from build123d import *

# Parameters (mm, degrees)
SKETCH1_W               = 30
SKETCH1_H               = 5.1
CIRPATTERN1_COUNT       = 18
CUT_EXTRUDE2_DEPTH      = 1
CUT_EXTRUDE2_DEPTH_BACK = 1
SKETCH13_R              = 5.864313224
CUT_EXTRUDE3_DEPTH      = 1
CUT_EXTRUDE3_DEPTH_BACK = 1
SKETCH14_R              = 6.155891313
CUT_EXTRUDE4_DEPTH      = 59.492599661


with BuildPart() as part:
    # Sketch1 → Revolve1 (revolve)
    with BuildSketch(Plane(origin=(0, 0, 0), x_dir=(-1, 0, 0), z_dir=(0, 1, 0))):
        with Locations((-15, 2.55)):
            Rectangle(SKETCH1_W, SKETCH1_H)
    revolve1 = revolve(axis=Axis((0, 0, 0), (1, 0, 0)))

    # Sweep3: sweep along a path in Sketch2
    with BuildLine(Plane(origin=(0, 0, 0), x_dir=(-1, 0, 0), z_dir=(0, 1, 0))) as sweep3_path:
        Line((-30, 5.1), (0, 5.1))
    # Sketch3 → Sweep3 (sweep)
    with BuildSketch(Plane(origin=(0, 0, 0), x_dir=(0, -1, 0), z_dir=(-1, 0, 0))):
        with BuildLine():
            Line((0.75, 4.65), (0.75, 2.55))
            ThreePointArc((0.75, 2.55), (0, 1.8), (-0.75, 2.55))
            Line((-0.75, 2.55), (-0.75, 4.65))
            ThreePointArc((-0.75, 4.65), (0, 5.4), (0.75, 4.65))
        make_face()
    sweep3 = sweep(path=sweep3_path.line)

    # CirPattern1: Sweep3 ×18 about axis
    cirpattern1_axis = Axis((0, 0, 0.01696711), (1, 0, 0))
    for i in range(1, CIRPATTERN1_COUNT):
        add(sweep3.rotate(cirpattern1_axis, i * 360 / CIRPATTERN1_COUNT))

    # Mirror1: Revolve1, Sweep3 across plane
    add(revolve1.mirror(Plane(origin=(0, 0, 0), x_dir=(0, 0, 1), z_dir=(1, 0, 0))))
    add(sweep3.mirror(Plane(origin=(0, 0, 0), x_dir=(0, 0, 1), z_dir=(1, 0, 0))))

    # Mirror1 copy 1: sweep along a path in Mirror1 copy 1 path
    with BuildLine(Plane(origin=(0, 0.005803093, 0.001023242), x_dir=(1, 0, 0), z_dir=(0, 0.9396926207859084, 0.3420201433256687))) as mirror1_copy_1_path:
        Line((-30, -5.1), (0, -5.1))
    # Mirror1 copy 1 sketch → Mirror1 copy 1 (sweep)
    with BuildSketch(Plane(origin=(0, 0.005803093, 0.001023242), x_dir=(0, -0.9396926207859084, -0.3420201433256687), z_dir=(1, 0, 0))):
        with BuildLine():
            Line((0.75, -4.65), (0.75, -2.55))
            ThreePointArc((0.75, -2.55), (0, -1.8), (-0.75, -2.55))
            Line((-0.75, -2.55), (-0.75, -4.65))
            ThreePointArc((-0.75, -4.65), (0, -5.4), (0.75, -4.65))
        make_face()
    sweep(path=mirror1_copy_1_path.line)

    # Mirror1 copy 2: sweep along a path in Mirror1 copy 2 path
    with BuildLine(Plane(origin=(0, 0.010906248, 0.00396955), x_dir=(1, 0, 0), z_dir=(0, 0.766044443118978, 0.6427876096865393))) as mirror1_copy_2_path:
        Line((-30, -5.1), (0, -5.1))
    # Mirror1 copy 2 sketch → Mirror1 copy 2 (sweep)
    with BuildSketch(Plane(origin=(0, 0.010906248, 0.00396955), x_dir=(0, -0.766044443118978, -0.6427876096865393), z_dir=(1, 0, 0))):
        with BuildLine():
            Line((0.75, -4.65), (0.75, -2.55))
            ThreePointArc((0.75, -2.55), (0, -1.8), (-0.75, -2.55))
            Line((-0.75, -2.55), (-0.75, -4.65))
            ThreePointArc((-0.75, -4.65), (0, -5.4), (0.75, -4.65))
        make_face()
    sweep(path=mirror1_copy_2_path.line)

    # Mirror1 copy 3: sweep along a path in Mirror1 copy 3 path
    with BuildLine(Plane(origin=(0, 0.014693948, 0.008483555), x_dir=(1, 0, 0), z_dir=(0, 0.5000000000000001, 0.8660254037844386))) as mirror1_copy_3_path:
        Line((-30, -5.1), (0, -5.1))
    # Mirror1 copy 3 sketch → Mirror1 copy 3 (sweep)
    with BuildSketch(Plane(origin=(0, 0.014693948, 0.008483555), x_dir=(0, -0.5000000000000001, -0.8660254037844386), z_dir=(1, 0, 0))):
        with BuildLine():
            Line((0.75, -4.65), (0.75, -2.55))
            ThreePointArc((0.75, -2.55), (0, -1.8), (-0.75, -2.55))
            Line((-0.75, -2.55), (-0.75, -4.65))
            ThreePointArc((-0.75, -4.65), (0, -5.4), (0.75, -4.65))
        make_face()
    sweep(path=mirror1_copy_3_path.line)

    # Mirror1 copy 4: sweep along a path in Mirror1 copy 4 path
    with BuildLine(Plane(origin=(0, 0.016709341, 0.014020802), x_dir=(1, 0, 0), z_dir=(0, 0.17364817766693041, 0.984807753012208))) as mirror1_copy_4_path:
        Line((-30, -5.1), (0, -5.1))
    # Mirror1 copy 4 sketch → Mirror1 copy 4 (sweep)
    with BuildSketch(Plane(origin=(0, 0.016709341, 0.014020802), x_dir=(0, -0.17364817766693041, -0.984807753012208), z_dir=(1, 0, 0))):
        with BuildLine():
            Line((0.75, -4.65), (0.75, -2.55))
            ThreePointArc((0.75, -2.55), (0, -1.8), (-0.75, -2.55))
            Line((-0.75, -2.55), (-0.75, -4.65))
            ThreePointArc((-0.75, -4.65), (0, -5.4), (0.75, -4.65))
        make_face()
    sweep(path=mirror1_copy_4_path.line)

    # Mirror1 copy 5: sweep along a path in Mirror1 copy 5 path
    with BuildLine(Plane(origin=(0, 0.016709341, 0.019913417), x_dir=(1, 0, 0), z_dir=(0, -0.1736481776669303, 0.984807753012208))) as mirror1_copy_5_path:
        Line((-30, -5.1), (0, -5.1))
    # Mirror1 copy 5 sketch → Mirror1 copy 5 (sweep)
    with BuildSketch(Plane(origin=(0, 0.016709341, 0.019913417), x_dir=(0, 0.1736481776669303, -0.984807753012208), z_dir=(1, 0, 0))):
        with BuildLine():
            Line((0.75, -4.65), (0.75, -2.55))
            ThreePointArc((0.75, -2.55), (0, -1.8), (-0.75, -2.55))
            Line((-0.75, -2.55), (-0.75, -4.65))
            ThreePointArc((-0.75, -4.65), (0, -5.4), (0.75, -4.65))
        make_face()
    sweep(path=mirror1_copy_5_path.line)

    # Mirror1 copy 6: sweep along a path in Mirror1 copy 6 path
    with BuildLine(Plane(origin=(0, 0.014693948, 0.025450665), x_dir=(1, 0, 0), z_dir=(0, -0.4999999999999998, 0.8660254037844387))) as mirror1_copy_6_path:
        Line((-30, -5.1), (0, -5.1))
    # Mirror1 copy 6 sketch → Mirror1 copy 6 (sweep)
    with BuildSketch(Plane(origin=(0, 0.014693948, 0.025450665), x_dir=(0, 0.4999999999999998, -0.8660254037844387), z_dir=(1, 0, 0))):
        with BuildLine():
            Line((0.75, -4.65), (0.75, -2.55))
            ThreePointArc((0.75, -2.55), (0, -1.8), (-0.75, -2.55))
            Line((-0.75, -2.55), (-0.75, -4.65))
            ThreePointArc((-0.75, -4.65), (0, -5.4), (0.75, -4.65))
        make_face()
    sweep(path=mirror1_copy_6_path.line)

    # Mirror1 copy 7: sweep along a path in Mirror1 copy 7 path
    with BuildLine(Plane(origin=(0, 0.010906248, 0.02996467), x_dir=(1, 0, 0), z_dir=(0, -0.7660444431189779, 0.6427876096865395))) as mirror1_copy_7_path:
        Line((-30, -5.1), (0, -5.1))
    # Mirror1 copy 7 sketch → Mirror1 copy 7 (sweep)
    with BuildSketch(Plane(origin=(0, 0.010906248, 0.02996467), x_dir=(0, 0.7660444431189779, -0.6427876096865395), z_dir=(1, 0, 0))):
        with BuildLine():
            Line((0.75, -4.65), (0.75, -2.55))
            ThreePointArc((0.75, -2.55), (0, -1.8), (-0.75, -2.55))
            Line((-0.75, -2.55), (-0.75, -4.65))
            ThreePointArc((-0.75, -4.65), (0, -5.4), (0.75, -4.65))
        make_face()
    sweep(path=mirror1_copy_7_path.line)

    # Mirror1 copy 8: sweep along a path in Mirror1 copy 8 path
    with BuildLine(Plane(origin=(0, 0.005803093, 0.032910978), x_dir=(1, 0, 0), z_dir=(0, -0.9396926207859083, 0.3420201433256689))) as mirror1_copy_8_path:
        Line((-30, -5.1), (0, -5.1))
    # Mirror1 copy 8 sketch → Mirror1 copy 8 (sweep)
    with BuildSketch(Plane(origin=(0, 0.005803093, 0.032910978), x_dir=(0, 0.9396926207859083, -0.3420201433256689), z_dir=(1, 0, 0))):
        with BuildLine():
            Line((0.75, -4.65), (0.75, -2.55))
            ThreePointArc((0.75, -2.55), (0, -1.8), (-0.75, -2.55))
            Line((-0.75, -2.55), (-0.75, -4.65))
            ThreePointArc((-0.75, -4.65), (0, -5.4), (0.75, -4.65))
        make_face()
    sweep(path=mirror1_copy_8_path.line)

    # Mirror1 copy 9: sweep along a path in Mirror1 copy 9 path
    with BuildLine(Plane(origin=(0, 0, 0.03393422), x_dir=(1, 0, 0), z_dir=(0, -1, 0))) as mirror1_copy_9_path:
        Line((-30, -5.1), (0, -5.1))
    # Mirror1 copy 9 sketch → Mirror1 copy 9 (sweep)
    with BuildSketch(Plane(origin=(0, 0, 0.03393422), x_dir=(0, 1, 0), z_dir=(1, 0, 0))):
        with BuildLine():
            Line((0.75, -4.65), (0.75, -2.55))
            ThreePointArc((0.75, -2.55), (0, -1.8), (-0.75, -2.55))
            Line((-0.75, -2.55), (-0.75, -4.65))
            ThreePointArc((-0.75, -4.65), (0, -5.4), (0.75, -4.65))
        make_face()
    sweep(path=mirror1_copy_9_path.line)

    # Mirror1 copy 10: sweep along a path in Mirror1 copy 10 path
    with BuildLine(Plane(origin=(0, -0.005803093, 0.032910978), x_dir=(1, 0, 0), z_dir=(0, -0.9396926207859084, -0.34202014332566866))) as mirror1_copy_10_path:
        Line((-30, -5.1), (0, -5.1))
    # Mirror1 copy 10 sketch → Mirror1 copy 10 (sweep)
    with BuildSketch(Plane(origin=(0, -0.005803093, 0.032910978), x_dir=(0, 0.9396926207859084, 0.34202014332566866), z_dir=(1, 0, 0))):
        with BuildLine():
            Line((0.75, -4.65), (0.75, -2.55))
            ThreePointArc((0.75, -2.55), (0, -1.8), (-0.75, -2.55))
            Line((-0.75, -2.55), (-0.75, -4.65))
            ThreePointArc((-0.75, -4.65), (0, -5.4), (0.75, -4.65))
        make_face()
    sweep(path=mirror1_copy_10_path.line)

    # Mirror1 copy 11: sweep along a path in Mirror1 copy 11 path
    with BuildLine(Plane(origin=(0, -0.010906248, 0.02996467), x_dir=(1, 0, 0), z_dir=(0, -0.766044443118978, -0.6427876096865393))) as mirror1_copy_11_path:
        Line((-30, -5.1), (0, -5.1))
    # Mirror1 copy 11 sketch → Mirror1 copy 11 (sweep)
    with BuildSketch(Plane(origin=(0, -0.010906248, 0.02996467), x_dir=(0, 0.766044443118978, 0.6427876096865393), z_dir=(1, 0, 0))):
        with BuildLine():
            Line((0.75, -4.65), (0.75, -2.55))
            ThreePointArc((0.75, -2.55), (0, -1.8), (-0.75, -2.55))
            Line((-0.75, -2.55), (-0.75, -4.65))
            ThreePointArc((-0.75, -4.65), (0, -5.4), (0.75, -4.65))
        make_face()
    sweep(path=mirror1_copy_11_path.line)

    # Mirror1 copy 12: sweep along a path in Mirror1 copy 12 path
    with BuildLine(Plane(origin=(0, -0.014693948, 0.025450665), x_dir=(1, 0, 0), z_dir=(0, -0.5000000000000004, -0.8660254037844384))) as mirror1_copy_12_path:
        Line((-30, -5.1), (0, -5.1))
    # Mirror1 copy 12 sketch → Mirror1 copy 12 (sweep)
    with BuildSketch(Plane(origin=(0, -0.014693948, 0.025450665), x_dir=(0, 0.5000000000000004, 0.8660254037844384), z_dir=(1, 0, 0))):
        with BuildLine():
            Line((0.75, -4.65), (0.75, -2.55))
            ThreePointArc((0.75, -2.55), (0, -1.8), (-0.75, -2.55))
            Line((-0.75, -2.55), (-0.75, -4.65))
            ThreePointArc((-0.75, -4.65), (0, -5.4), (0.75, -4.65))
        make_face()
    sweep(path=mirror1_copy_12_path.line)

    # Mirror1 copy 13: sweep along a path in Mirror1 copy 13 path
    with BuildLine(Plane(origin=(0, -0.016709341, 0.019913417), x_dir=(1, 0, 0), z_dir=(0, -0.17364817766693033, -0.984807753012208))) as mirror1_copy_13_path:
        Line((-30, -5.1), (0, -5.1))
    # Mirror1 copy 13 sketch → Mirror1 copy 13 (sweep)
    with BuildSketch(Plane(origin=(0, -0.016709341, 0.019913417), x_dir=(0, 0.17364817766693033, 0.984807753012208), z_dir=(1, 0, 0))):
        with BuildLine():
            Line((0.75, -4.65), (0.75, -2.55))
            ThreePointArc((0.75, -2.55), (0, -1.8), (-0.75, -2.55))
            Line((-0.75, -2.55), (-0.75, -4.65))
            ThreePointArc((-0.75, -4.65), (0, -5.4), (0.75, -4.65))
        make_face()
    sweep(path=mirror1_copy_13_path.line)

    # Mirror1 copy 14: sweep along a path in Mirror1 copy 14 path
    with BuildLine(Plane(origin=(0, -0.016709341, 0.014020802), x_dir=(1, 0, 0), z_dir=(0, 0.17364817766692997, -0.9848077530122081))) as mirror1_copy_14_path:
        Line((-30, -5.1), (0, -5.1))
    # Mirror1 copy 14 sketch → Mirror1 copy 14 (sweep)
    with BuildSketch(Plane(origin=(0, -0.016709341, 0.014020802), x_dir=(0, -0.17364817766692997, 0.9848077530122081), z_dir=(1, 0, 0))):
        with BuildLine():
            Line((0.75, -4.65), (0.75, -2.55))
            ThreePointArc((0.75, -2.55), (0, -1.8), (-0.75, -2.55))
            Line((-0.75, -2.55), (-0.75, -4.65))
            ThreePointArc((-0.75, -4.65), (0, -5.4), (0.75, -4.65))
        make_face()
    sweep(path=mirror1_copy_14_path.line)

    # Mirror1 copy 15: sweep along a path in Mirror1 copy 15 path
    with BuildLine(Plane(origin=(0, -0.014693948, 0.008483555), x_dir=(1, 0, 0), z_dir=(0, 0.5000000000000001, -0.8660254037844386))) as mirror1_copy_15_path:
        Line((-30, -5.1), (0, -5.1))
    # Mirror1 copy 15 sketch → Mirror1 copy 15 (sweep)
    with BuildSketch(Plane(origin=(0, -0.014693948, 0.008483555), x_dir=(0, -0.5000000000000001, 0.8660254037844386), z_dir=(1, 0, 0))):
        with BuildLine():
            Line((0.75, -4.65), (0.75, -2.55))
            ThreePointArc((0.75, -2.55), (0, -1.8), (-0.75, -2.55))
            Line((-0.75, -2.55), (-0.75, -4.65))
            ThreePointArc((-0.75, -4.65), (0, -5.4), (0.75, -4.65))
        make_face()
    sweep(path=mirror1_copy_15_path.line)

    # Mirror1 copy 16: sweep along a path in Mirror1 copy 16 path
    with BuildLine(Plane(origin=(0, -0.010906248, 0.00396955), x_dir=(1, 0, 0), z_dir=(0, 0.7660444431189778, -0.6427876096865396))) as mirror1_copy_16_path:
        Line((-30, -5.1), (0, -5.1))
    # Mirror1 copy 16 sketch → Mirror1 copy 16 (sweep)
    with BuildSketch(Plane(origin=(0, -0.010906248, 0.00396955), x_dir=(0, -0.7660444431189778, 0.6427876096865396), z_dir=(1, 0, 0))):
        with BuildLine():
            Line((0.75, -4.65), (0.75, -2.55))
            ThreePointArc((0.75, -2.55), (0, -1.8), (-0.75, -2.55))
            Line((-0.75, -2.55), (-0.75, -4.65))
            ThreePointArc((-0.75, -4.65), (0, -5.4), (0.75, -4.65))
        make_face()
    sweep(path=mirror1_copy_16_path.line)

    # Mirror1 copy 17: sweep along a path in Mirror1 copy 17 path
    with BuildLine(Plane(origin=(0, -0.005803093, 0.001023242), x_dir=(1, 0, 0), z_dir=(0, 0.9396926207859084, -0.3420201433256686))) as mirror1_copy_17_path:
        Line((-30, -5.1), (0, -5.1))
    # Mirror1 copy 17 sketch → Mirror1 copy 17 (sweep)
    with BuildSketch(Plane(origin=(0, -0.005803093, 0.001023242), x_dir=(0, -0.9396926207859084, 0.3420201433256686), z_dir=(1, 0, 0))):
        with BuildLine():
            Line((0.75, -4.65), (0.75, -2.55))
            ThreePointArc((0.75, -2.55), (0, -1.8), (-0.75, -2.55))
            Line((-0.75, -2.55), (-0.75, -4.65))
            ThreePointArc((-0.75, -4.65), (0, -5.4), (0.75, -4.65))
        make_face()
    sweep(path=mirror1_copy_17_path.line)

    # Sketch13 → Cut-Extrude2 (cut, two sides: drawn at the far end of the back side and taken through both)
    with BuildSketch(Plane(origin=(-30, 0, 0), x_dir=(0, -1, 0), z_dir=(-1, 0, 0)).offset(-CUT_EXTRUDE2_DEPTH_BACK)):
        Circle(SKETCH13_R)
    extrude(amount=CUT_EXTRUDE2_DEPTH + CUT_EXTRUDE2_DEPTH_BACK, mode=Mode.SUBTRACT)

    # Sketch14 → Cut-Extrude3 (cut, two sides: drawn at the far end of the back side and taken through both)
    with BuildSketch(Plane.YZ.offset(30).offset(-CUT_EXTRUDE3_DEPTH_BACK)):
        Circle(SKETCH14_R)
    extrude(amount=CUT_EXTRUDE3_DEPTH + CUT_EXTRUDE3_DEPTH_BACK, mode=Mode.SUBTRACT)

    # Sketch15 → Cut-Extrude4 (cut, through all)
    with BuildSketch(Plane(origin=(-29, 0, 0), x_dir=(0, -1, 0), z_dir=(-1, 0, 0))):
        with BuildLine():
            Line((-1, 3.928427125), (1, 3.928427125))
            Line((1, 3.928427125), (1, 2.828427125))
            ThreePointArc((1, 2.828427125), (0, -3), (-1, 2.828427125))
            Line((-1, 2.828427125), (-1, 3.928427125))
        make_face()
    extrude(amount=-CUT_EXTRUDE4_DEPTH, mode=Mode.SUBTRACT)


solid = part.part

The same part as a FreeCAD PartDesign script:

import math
import FreeCAD as App
import Part
import Sketcher
Q = App.Units.Quantity


def add_polygon(sketch, points):
    """Adds a closed chain of lines whose ends are joined by coincident constraints."""
    first, n = sketch.GeometryCount, len(points)
    for a, b in zip(points, points[1:] + points[:1]):
        sketch.addGeometry(Part.LineSegment(App.Vector(*a, 0), App.Vector(*b, 0)), False)
    for i in range(n):
        sketch.addConstraint(Sketcher.Constraint("Coincident", first + i, 2, first + (i + 1) % n, 1))

doc = App.newDocument("Part")
body = doc.addObject("PartDesign::Body", "Body")

sketch1 = doc.addObject("Sketcher::SketchObject", "Sketch")
body.addObject(sketch1)
sketch1.AttachmentSupport = (doc.XZ_Plane, [""])
sketch1.MapMode = "FlatFace"
add_polygon(sketch1, [(30, 5), (30, 0), (0, 0), (0, 5)])
sketch1.addConstraint([
    Sketcher.Constraint("Vertical", 0),
    Sketcher.Constraint("Horizontal", 1),
    Sketcher.Constraint("Vertical", 2),
    Sketcher.Constraint("Horizontal", 3),
    Sketcher.Constraint("Coincident", 1, 2, -1, 1),
    Sketcher.Constraint("DistanceX", 1, 2, 1, 1, 30.0),
    Sketcher.Constraint("DistanceY", 0, 2, 0, 1, 5.1),
])
revolution = doc.addObject("PartDesign::Revolution", "Revolution")
body.addObject(revolution)
revolution.Profile = sketch1
revolution.ReferenceAxis = (sketch1, ["H_Axis"])
revolution.Angle = 360

sketch2 = doc.addObject("Sketcher::SketchObject", "Sketch001")
body.addObject(sketch2)
sketch2.AttachmentSupport = (doc.YZ_Plane, [""])
sketch2.MapMode = "FlatFace"
sketch2.addGeometry([
    Part.LineSegment(App.Vector(-0.8, 2.5, 0), App.Vector(-0.8, 4.7, 0)),
    Part.ArcOfCircle(Part.Circle(App.Vector(0, 4.7, 0), App.Vector(0, 0, 1), 0.8), math.radians(0), math.radians(180)),
    Part.LineSegment(App.Vector(0.8, 4.7, 0), App.Vector(0.8, 2.5, 0)),
    Part.ArcOfCircle(Part.Circle(App.Vector(0, 2.5, 0), App.Vector(0, 0, 1), 0.8), math.radians(180), math.radians(360)),
], False)
sketch2.addConstraint([
    Sketcher.Constraint("Tangent", 0, 2, 1, 2),
    Sketcher.Constraint("Tangent", 1, 1, 2, 1),
    Sketcher.Constraint("Tangent", 2, 2, 3, 2),
    Sketcher.Constraint("Tangent", 3, 1, 0, 1),
    Sketcher.Constraint("Vertical", 0),
    Sketcher.Constraint("Vertical", 2),
    Sketcher.Constraint("PointOnObject", 1, 3, -2),
    Sketcher.Constraint("Radius", 1, 0.75),
    Sketcher.Constraint("DistanceY", 0, 1, 0, 2, 2.1),
    Sketcher.Constraint("DistanceY", -1, 1, 1, 3, 4.65),
])

sketch3 = doc.addObject("Sketcher::SketchObject", "Sketch002")
body.addObject(sketch3)
sketch3.AttachmentSupport = (doc.XY_Plane, [""])
sketch3.MapMode = "FlatFace"
sketch3.AttachmentOffset = App.Placement(App.Vector(0, 0, 5.1), App.Rotation())
sketch3.addGeometry(Part.LineSegment(App.Vector(30, 0, 0), App.Vector(0, 0, 0)), False)
sketch3.addConstraint([
    Sketcher.Constraint("Horizontal", 0),
    Sketcher.Constraint("Coincident", 0, 2, -1, 1),
    Sketcher.Constraint("DistanceX", 0, 2, 0, 1, 30.0),
])
doc.recompute()

additivepipe = doc.addObject("PartDesign::AdditivePipe", "AdditivePipe")
body.addObject(additivepipe)
additivepipe.Profile = sketch2
additivepipe.Spine = (sketch3, ["Edge1"])
doc.recompute()

datumline = doc.addObject("PartDesign::Line", "DatumLine")
body.addObject(datumline)
datumline.Placement = App.Placement(App.Vector(0, 0, 0.016967), App.Rotation(App.Vector(0, 0, 1), App.Vector(1, 0, 0)))
polarpattern = doc.addObject("PartDesign::PolarPattern", "PolarPattern")
body.addObject(polarpattern)
polarpattern.Originals = [additivepipe]
polarpattern.Axis = (datumline, [""])
polarpattern.Angle = 360
polarpattern.Occurrences = 18
body.Tip = polarpattern
doc.recompute()

mirrored = doc.addObject("PartDesign::Mirrored", "Mirrored")
body.addObject(mirrored)
mirrored.Originals = [revolution, additivepipe]
mirrored.MirrorPlane = (doc.YZ_Plane, [""])
body.Tip = mirrored

sketch4 = doc.addObject("Sketcher::SketchObject", "Sketch003")
body.addObject(sketch4)
sketch4.AttachmentSupport = (doc.YZ_Plane, [""])
sketch4.MapMode = "FlatFace"
sketch4.addGeometry([
    Part.LineSegment(App.Vector(-2.3, 4.1, 0), App.Vector(-1.6, 2.1, 0)),
    Part.ArcOfCircle(Part.Circle(App.Vector(-0.9, 2.4, 0), App.Vector(0, 0, 1), 0.8), math.radians(-160), math.radians(20)),
    Part.LineSegment(App.Vector(-0.2, 2.7, 0), App.Vector(-0.9, 4.6, 0)),
    Part.ArcOfCircle(Part.Circle(App.Vector(-1.6, 4.4, 0), App.Vector(0, 0, 1), 0.8), math.radians(20), math.radians(200)),
], False)
sketch4.addConstraint([
    Sketcher.Constraint("Tangent", 0, 2, 1, 1),
    Sketcher.Constraint("Tangent", 1, 2, 2, 1),
    Sketcher.Constraint("Tangent", 2, 2, 3, 1),
    Sketcher.Constraint("Tangent", 3, 2, 0, 1),
    Sketcher.Constraint("Equal", 1, 3),
    Sketcher.Constraint("Angle", 0, Q("-70 deg")),
    Sketcher.Constraint("Radius", 1, 0.75),
    Sketcher.Constraint("Distance", 0, 2.1),
    Sketcher.Constraint("DistanceX", 1, 3, -1, 1, 0.866348),
    Sketcher.Constraint("DistanceY", -1, 1, 1, 3, 2.397239),
])

sketch5 = doc.addObject("Sketcher::SketchObject", "Sketch004")
body.addObject(sketch5)
sketch5.AttachmentSupport = (doc.XY_Plane, [""])
sketch5.MapMode = "FlatFace"
sketch5.AttachmentOffset = App.Placement(App.Vector(0, 0, 4.793456), App.Rotation())
sketch5.addGeometry(Part.LineSegment(App.Vector(-30, -2, 0), App.Vector(0, -2, 0)), False)
sketch5.addConstraint([
    Sketcher.Constraint("Horizontal", 0),
    Sketcher.Constraint("PointOnObject", 0, 2, -2),
    Sketcher.Constraint("DistanceX", 0, 1, 0, 2, 30.0),
    Sketcher.Constraint("DistanceY", 0, 1, -1, 1, 1.7385),
])
doc.recompute()

additivepipe2 = doc.addObject("PartDesign::AdditivePipe", "AdditivePipe001")
body.addObject(additivepipe2)
additivepipe2.Profile = sketch4
additivepipe2.Spine = (sketch5, ["Edge1"])

sketch6 = doc.addObject("Sketcher::SketchObject", "Sketch005")
body.addObject(sketch6)
sketch6.AttachmentSupport = (doc.YZ_Plane, [""])
sketch6.MapMode = "FlatFace"
sketch6.addGeometry([
    Part.LineSegment(App.Vector(-3.6, 3.1, 0), App.Vector(-2.2, 1.5, 0)),
    Part.ArcOfCircle(Part.Circle(App.Vector(-1.6, 2, 0), App.Vector(0, 0, 1), 0.8), math.radians(-140), math.radians(40)),
    Part.LineSegment(App.Vector(-1.1, 2.4, 0), App.Vector(-2.4, 4, 0)),
    Part.ArcOfCircle(Part.Circle(App.Vector(-3, 3.6, 0), App.Vector(0, 0, 1), 0.8), math.radians(40), math.radians(220)),
], False)
sketch6.addConstraint([
    Sketcher.Constraint("Tangent", 0, 2, 1, 1),
    Sketcher.Constraint("Tangent", 1, 2, 2, 1),
    Sketcher.Constraint("Tangent", 2, 2, 3, 1),
    Sketcher.Constraint("Tangent", 3, 2, 0, 1),
    Sketcher.Constraint("Equal", 1, 3),
    Sketcher.Constraint("Angle", 0, Q("-50 deg")),
    Sketcher.Constraint("Radius", 1, 0.75),
    Sketcher.Constraint("Distance", 0, 2.1),
    Sketcher.Constraint("DistanceX", 1, 2, -1, 1, 1.053669),
    Sketcher.Constraint("DistanceY", -1, 1, 1, 3, 1.957383),
])

sketch7 = doc.addObject("Sketcher::SketchObject", "Sketch006")
body.addObject(sketch7)
sketch7.AttachmentSupport = (doc.XY_Plane, [""])
sketch7.MapMode = "FlatFace"
sketch7.AttachmentOffset = App.Placement(App.Vector(0, 0, 3.910796), App.Rotation())
sketch7.addGeometry(Part.LineSegment(App.Vector(-30, -3, 0), App.Vector(0, -3, 0)), False)
sketch7.addConstraint([
    Sketcher.Constraint("Horizontal", 0),
    Sketcher.Constraint("PointOnObject", 0, 2, -2),
    Sketcher.Constraint("DistanceX", 0, 1, 0, 2, 30.0),
    Sketcher.Constraint("DistanceY", 0, 1, -1, 1, 3.267311),
])
doc.recompute()

additivepipe3 = doc.addObject("PartDesign::AdditivePipe", "AdditivePipe002")
body.addObject(additivepipe3)
additivepipe3.Profile = sketch6
additivepipe3.Spine = (sketch7, ["Edge1"])

sketch8 = doc.addObject("Sketcher::SketchObject", "Sketch007")
body.addObject(sketch8)
sketch8.AttachmentSupport = (doc.YZ_Plane, [""])
sketch8.MapMode = "FlatFace"
sketch8.addGeometry([
    Part.LineSegment(App.Vector(-4.4, 1.7, 0), App.Vector(-2.6, 0.6, 0)),
    Part.ArcOfCircle(Part.Circle(App.Vector(-2.2, 1.3, 0), App.Vector(0, 0, 1), 0.8), math.radians(-120), math.radians(60)),
    Part.LineSegment(App.Vector(-1.8, 1.9, 0), App.Vector(-3.6, 3, 0)),
    Part.ArcOfCircle(Part.Circle(App.Vector(-4, 2.3, 0), App.Vector(0, 0, 1), 0.8), math.radians(60), math.radians(240)),
], False)
sketch8.addConstraint([
    Sketcher.Constraint("Tangent", 0, 2, 1, 1),
    Sketcher.Constraint("Tangent", 1, 2, 2, 1),
    Sketcher.Constraint("Tangent", 2, 2, 3, 1),
    Sketcher.Constraint("Tangent", 3, 2, 0, 1),
    Sketcher.Constraint("Equal", 1, 3),
    Sketcher.Constraint("Angle", 0, Q("-30 deg")),
    Sketcher.Constraint("Radius", 1, 0.75),
    Sketcher.Constraint("Distance", 0, 2.1),
    Sketcher.Constraint("DistanceX", 1, 3, -1, 1, 2.193671),
    Sketcher.Constraint("DistanceY", -1, 1, 1, 3, 1.283484),
])

sketch9 = doc.addObject("Sketcher::SketchObject", "Sketch008")
body.addObject(sketch9)
sketch9.AttachmentSupport = (doc.XY_Plane, [""])
sketch9.MapMode = "FlatFace"
sketch9.AttachmentOffset = App.Placement(App.Vector(0, 0, 2.558484), App.Rotation())
sketch9.addGeometry(Part.LineSegment(App.Vector(-30, -4, 0), App.Vector(0, -4, 0)), False)
sketch9.addConstraint([
    Sketcher.Constraint("Horizontal", 0),
    Sketcher.Constraint("PointOnObject", 0, 2, -2),
    Sketcher.Constraint("DistanceX", 0, 1, 0, 2, 30.0),
    Sketcher.Constraint("DistanceY", 0, 1, -1, 1, 4.402036),
])
doc.recompute()

additivepipe4 = doc.addObject("PartDesign::AdditivePipe", "AdditivePipe003")
body.addObject(additivepipe4)
additivepipe4.Profile = sketch8
additivepipe4.Spine = (sketch9, ["Edge1"])

sketch10 = doc.addObject("Sketcher::SketchObject", "Sketch009")
body.addObject(sketch10)
sketch10.AttachmentSupport = (doc.YZ_Plane, [""])
sketch10.MapMode = "FlatFace"
sketch10.addGeometry([
    Part.LineSegment(App.Vector(-4.7, 0.1, 0), App.Vector(-2.6, -0.3, 0)),
    Part.ArcOfCircle(Part.Circle(App.Vector(-2.5, 0.5, 0), App.Vector(0, 0, 1), 0.8), math.radians(-100), math.radians(80)),
    Part.LineSegment(App.Vector(-2.4, 1.2, 0), App.Vector(-4.4, 1.6, 0)),
    Part.ArcOfCircle(Part.Circle(App.Vector(-4.6, 0.8, 0), App.Vector(0, 0, 1), 0.8), math.radians(80), math.radians(260)),
], False)
sketch10.addConstraint([
    Sketcher.Constraint("Tangent", 0, 2, 1, 1),
    Sketcher.Constraint("Tangent", 1, 2, 2, 1),
    Sketcher.Constraint("Tangent", 2, 2, 3, 1),
    Sketcher.Constraint("Tangent", 3, 2, 0, 1),
    Sketcher.Constraint("Equal", 1, 3),
    Sketcher.Constraint("Angle", 0, Q("-10 deg")),
    Sketcher.Constraint("Radius", 1, 0.75),
    Sketcher.Constraint("Distance", 0, 2.1),
    Sketcher.Constraint("DistanceX", 1, 3, -1, 1, 2.49455),
    Sketcher.Constraint("DistanceY", -1, 1, 1, 2, 1.195429),
])

sketch11 = doc.addObject("Sketcher::SketchObject", "Sketch010")
body.addObject(sketch11)
sketch11.AttachmentSupport = (doc.XY_Plane, [""])
sketch11.MapMode = "FlatFace"
sketch11.AttachmentOffset = App.Placement(App.Vector(0, 0, 0.899627), App.Rotation())
sketch11.addGeometry(Part.LineSegment(App.Vector(-30, -5, 0), App.Vector(0, -5, 0)), False)
sketch11.addConstraint([
    Sketcher.Constraint("Horizontal", 0),
    Sketcher.Constraint("PointOnObject", 0, 2, -2),
    Sketcher.Constraint("DistanceX", 0, 1, 0, 2, 30.0),
    Sketcher.Constraint("DistanceY", 0, 1, -1, 1, 5.00581),
])
doc.recompute()

additivepipe5 = doc.addObject("PartDesign::AdditivePipe", "AdditivePipe004")
body.addObject(additivepipe5)
additivepipe5.Profile = sketch10
additivepipe5.Spine = (sketch11, ["Edge1"])

sketch12 = doc.addObject("Sketcher::SketchObject", "Sketch011")
body.addObject(sketch12)
sketch12.AttachmentSupport = (doc.YZ_Plane, [""])
sketch12.MapMode = "FlatFace"
sketch12.addGeometry([
    Part.LineSegment(App.Vector(-4.4, -1.5, 0), App.Vector(-2.4, -1.2, 0)),
    Part.ArcOfCircle(Part.Circle(App.Vector(-2.5, -0.4, 0), App.Vector(0, 0, 1), 0.8), math.radians(-80), math.radians(100)),
    Part.LineSegment(App.Vector(-2.6, 0.3, 0), App.Vector(-4.7, 0, 0)),
    Part.ArcOfCircle(Part.Circle(App.Vector(-4.6, -0.8, 0), App.Vector(0, 0, 1), 0.8), math.radians(100), math.radians(280)),
], False)
sketch12.addConstraint([
    Sketcher.Constraint("Tangent", 0, 2, 1, 1),
    Sketcher.Constraint("Tangent", 1, 2, 2, 1),
    Sketcher.Constraint("Tangent", 2, 2, 3, 1),
    Sketcher.Constraint("Tangent", 3, 2, 0, 1),
    Sketcher.Constraint("Equal", 1, 3),
    Sketcher.Constraint("Angle", 0, Q("10 deg")),
    Sketcher.Constraint("Radius", 1, 0.75),
    Sketcher.Constraint("Distance", 0, 2.1),
    Sketcher.Constraint("DistanceX", 1, 3, -1, 1, 2.49455),
    Sketcher.Constraint("DistanceY", 1, 3, -1, 1, 0.422889),
])

sketch13 = doc.addObject("Sketcher::SketchObject", "Sketch012")
body.addObject(sketch13)
sketch13.AttachmentSupport = (doc.XY_Plane, [""])
sketch13.MapMode = "FlatFace"
sketch13.AttachmentOffset = App.Placement(App.Vector(0, 0, -0.865692), App.Rotation())
sketch13.addGeometry(Part.LineSegment(App.Vector(-30, -5, 0), App.Vector(0, -5, 0)), False)
sketch13.addConstraint([
    Sketcher.Constraint("Horizontal", 0),
    Sketcher.Constraint("PointOnObject", 0, 2, -2),
    Sketcher.Constraint("DistanceX", 0, 1, 0, 2, 30.0),
    Sketcher.Constraint("DistanceY", 0, 1, -1, 1, 5.00581),
])
doc.recompute()

additivepipe6 = doc.addObject("PartDesign::AdditivePipe", "AdditivePipe005")
body.addObject(additivepipe6)
additivepipe6.Profile = sketch12
additivepipe6.Spine = (sketch13, ["Edge1"])

sketch14 = doc.addObject("Sketcher::SketchObject", "Sketch013")
body.addObject(sketch14)
sketch14.AttachmentSupport = (doc.YZ_Plane, [""])
sketch14.MapMode = "FlatFace"
sketch14.addGeometry([
    Part.LineSegment(App.Vector(-3.6, -2.9, 0), App.Vector(-1.8, -1.9, 0)),
    Part.ArcOfCircle(Part.Circle(App.Vector(-2.2, -1.2, 0), App.Vector(0, 0, 1), 0.8), math.radians(-60), math.radians(120)),
    Part.LineSegment(App.Vector(-2.6, -0.6, 0), App.Vector(-4.4, -1.7, 0)),
    Part.ArcOfCircle(Part.Circle(App.Vector(-4, -2.3, 0), App.Vector(0, 0, 1), 0.8), math.radians(120), math.radians(300)),
], False)
sketch14.addConstraint([
    Sketcher.Constraint("Tangent", 0, 2, 1, 1),
    Sketcher.Constraint("Tangent", 1, 2, 2, 1),
    Sketcher.Constraint("Tangent", 2, 2, 3, 1),
    Sketcher.Constraint("Tangent", 3, 2, 0, 1),
    Sketcher.Constraint("Equal", 1, 3),
    Sketcher.Constraint("Angle", 0, Q("30 deg")),
    Sketcher.Constraint("Radius", 1, 0.75),
    Sketcher.Constraint("Distance", 0, 2.1),
    Sketcher.Constraint("DistanceX", 1, 3, -1, 1, 2.193671),
    Sketcher.Constraint("DistanceY", 1, 3, -1, 1, 1.249549),
])

sketch15 = doc.addObject("Sketcher::SketchObject", "Sketch014")
body.addObject(sketch15)
sketch15.AttachmentSupport = (doc.XY_Plane, [""])
sketch15.MapMode = "FlatFace"
sketch15.AttachmentOffset = App.Placement(App.Vector(0, 0, -2.524549), App.Rotation())
sketch15.addGeometry(Part.LineSegment(App.Vector(-30, -4, 0), App.Vector(0, -4, 0)), False)
sketch15.addConstraint([
    Sketcher.Constraint("Horizontal", 0),
    Sketcher.Constraint("PointOnObject", 0, 2, -2),
    Sketcher.Constraint("DistanceX", 0, 1, 0, 2, 30.0),
    Sketcher.Constraint("DistanceY", 0, 1, -1, 1, 4.402036),
])
doc.recompute()

additivepipe7 = doc.addObject("PartDesign::AdditivePipe", "AdditivePipe006")
body.addObject(additivepipe7)
additivepipe7.Profile = sketch14
additivepipe7.Spine = (sketch15, ["Edge1"])

sketch16 = doc.addObject("Sketcher::SketchObject", "Sketch015")
body.addObject(sketch16)
sketch16.AttachmentSupport = (doc.YZ_Plane, [""])
sketch16.MapMode = "FlatFace"
sketch16.addGeometry([
    Part.LineSegment(App.Vector(-2.4, -4, 0), App.Vector(-1.1, -2.4, 0)),
    Part.ArcOfCircle(Part.Circle(App.Vector(-1.6, -1.9, 0), App.Vector(0, 0, 1), 0.8), math.radians(-40), math.radians(140)),
    Part.LineSegment(App.Vector(-2.2, -1.4, 0), App.Vector(-3.6, -3.1, 0)),
    Part.ArcOfCircle(Part.Circle(App.Vector(-3, -3.5, 0), App.Vector(0, 0, 1), 0.8), math.radians(140), math.radians(320)),
], False)
sketch16.addConstraint([
    Sketcher.Constraint("Tangent", 0, 2, 1, 1),
    Sketcher.Constraint("Tangent", 1, 2, 2, 1),
    Sketcher.Constraint("Tangent", 2, 2, 3, 1),
    Sketcher.Constraint("Tangent", 3, 2, 0, 1),
    Sketcher.Constraint("Equal", 1, 3),
    Sketcher.Constraint("Angle", 0, Q("50 deg")),
    Sketcher.Constraint("Radius", 1, 0.75),
    Sketcher.Constraint("Distance", 0, 2.1),
    Sketcher.Constraint("DistanceY", 1, 3, -1, 1, 1.923449),
    Sketcher.Constraint("DistanceX", 0, 2, -1, 1, 1.053669),
])

sketch17 = doc.addObject("Sketcher::SketchObject", "Sketch016")
body.addObject(sketch17)
sketch17.AttachmentSupport = (doc.XY_Plane, [""])
sketch17.MapMode = "FlatFace"
sketch17.AttachmentOffset = App.Placement(App.Vector(0, 0, -3.876862), App.Rotation())
sketch17.addGeometry(Part.LineSegment(App.Vector(-30, -3, 0), App.Vector(0, -3, 0)), False)
sketch17.addConstraint([
    Sketcher.Constraint("Horizontal", 0),
    Sketcher.Constraint("PointOnObject", 0, 2, -2),
    Sketcher.Constraint("DistanceX", 0, 1, 0, 2, 30.0),
    Sketcher.Constraint("DistanceY", 0, 1, -1, 1, 3.267311),
])
doc.recompute()

additivepipe8 = doc.addObject("PartDesign::AdditivePipe", "AdditivePipe007")
body.addObject(additivepipe8)
additivepipe8.Profile = sketch16
additivepipe8.Spine = (sketch17, ["Edge1"])

sketch18 = doc.addObject("Sketcher::SketchObject", "Sketch017")
body.addObject(sketch18)
sketch18.AttachmentSupport = (doc.YZ_Plane, [""])
sketch18.MapMode = "FlatFace"
sketch18.addGeometry([
    Part.LineSegment(App.Vector(-0.9, -4.6, 0), App.Vector(-0.2, -2.6, 0)),
    Part.ArcOfCircle(Part.Circle(App.Vector(-0.9, -2.4, 0), App.Vector(0, 0, 1), 0.8), math.radians(-20), math.radians(160)),
    Part.LineSegment(App.Vector(-1.6, -2.1, 0), App.Vector(-2.3, -4.1, 0)),
    Part.ArcOfCircle(Part.Circle(App.Vector(-1.6, -4.3, 0), App.Vector(0, 0, 1), 0.8), math.radians(160), math.radians(340)),
], False)
sketch18.addConstraint([
    Sketcher.Constraint("Tangent", 0, 2, 1, 1),
    Sketcher.Constraint("Tangent", 1, 2, 2, 1),
    Sketcher.Constraint("Tangent", 2, 2, 3, 1),
    Sketcher.Constraint("Tangent", 3, 2, 0, 1),
    Sketcher.Constraint("Equal", 1, 3),
    Sketcher.Constraint("Angle", 0, Q("70 deg")),
    Sketcher.Constraint("Radius", 1, 0.75),
    Sketcher.Constraint("Distance", 0, 2.1),
    Sketcher.Constraint("DistanceX", 1, 3, -1, 1, 0.866348),
    Sketcher.Constraint("DistanceY", 3, 3, -1, 1, 4.33666),
])

sketch19 = doc.addObject("Sketcher::SketchObject", "Sketch018")
body.addObject(sketch19)
sketch19.AttachmentSupport = (doc.XY_Plane, [""])
sketch19.MapMode = "FlatFace"
sketch19.AttachmentOffset = App.Placement(App.Vector(0, 0, -4.759521), App.Rotation())
sketch19.addGeometry(Part.LineSegment(App.Vector(-30, -2, 0), App.Vector(0, -2, 0)), False)
sketch19.addConstraint([
    Sketcher.Constraint("Horizontal", 0),
    Sketcher.Constraint("PointOnObject", 0, 2, -2),
    Sketcher.Constraint("DistanceX", 0, 1, 0, 2, 30.0),
    Sketcher.Constraint("DistanceY", 0, 1, -1, 1, 1.7385),
])
doc.recompute()

additivepipe9 = doc.addObject("PartDesign::AdditivePipe", "AdditivePipe008")
body.addObject(additivepipe9)
additivepipe9.Profile = sketch18
additivepipe9.Spine = (sketch19, ["Edge1"])

sketch20 = doc.addObject("Sketcher::SketchObject", "Sketch019")
body.addObject(sketch20)
sketch20.AttachmentSupport = (doc.YZ_Plane, [""])
sketch20.MapMode = "FlatFace"
sketch20.addGeometry([
    Part.LineSegment(App.Vector(0.8, -4.6, 0), App.Vector(0.8, -2.5, 0)),
    Part.ArcOfCircle(Part.Circle(App.Vector(0, -2.5, 0), App.Vector(0, 0, 1), 0.8), math.radians(0), math.radians(180)),
    Part.LineSegment(App.Vector(-0.8, -2.5, 0), App.Vector(-0.8, -4.6, 0)),
    Part.ArcOfCircle(Part.Circle(App.Vector(0, -4.6, 0), App.Vector(0, 0, 1), 0.8), math.radians(180), math.radians(360)),
], False)
sketch20.addConstraint([
    Sketcher.Constraint("Tangent", 0, 2, 1, 1),
    Sketcher.Constraint("Tangent", 1, 2, 2, 1),
    Sketcher.Constraint("Tangent", 2, 2, 3, 1),
    Sketcher.Constraint("Tangent", 3, 2, 0, 1),
    Sketcher.Constraint("Vertical", 0),
    Sketcher.Constraint("Vertical", 2),
    Sketcher.Constraint("PointOnObject", 1, 3, -2),
    Sketcher.Constraint("Radius", 1, 0.75),
    Sketcher.Constraint("DistanceY", 0, 1, 0, 2, 2.1),
    Sketcher.Constraint("DistanceY", 1, 3, -1, 1, 2.516066),
])

sketch21 = doc.addObject("Sketcher::SketchObject", "Sketch020")
body.addObject(sketch21)
sketch21.AttachmentSupport = (doc.XY_Plane, [""])
sketch21.MapMode = "FlatFace"
sketch21.AttachmentOffset = App.Placement(App.Vector(0, 0, -5.066066), App.Rotation())
sketch21.addGeometry(Part.LineSegment(App.Vector(-30, 0, 0), App.Vector(0, 0, 0)), False)
sketch21.addConstraint([
    Sketcher.Constraint("Horizontal", 0),
    Sketcher.Constraint("Coincident", 0, 2, -1, 1),
    Sketcher.Constraint("DistanceX", 0, 1, 0, 2, 30.0),
])
doc.recompute()

additivepipe10 = doc.addObject("PartDesign::AdditivePipe", "AdditivePipe009")
body.addObject(additivepipe10)
additivepipe10.Profile = sketch20
additivepipe10.Spine = (sketch21, ["Edge1"])

sketch22 = doc.addObject("Sketcher::SketchObject", "Sketch021")
body.addObject(sketch22)
sketch22.AttachmentSupport = (doc.YZ_Plane, [""])
sketch22.MapMode = "FlatFace"
sketch22.addGeometry([
    Part.LineSegment(App.Vector(2.3, -4.1, 0), App.Vector(1.6, -2.1, 0)),
    Part.ArcOfCircle(Part.Circle(App.Vector(0.9, -2.4, 0), App.Vector(0, 0, 1), 0.8), math.radians(20), math.radians(200)),
    Part.LineSegment(App.Vector(0.2, -2.6, 0), App.Vector(0.9, -4.6, 0)),
    Part.ArcOfCircle(Part.Circle(App.Vector(1.6, -4.3, 0), App.Vector(0, 0, 1), 0.8), math.radians(-160), math.radians(20)),
], False)
sketch22.addConstraint([
    Sketcher.Constraint("Tangent", 0, 2, 1, 1),
    Sketcher.Constraint("Tangent", 1, 2, 2, 1),
    Sketcher.Constraint("Tangent", 2, 2, 3, 1),
    Sketcher.Constraint("Tangent", 3, 2, 0, 1),
    Sketcher.Constraint("Equal", 1, 3),
    Sketcher.Constraint("Angle", 0, Q("110 deg")),
    Sketcher.Constraint("Radius", 1, 0.75),
    Sketcher.Constraint("Distance", 0, 2.1),
    Sketcher.Constraint("DistanceX", -1, 1, 1, 3, 0.866348),
    Sketcher.Constraint("DistanceY", 3, 3, -1, 1, 4.33666),
])

sketch23 = doc.addObject("Sketcher::SketchObject", "Sketch022")
body.addObject(sketch23)
sketch23.AttachmentSupport = (doc.XY_Plane, [""])
sketch23.MapMode = "FlatFace"
sketch23.AttachmentOffset = App.Placement(App.Vector(0, 0, -4.759521), App.Rotation())
sketch23.addGeometry(Part.LineSegment(App.Vector(-30, 2, 0), App.Vector(0, 2, 0)), False)
sketch23.addConstraint([
    Sketcher.Constraint("Horizontal", 0),
    Sketcher.Constraint("PointOnObject", 0, 2, -2),
    Sketcher.Constraint("DistanceX", 0, 1, 0, 2, 30.0),
    Sketcher.Constraint("DistanceY", -1, 1, 0, 1, 1.7385),
])
doc.recompute()

additivepipe11 = doc.addObject("PartDesign::AdditivePipe", "AdditivePipe010")
body.addObject(additivepipe11)
additivepipe11.Profile = sketch22
additivepipe11.Spine = (sketch23, ["Edge1"])

sketch24 = doc.addObject("Sketcher::SketchObject", "Sketch023")
body.addObject(sketch24)
sketch24.AttachmentSupport = (doc.YZ_Plane, [""])
sketch24.MapMode = "FlatFace"
sketch24.addGeometry([
    Part.LineSegment(App.Vector(3.6, -3.1, 0), App.Vector(2.2, -1.4, 0)),
    Part.ArcOfCircle(Part.Circle(App.Vector(1.6, -1.9, 0), App.Vector(0, 0, 1), 0.8), math.radians(40), math.radians(220)),
    Part.LineSegment(App.Vector(1.1, -2.4, 0), App.Vector(2.4, -4, 0)),
    Part.ArcOfCircle(Part.Circle(App.Vector(3, -3.5, 0), App.Vector(0, 0, 1), 0.8), math.radians(-140), math.radians(40)),
], False)
sketch24.addConstraint([
    Sketcher.Constraint("Tangent", 0, 2, 1, 1),
    Sketcher.Constraint("Tangent", 1, 2, 2, 1),
    Sketcher.Constraint("Tangent", 2, 2, 3, 1),
    Sketcher.Constraint("Tangent", 3, 2, 0, 1),
    Sketcher.Constraint("Equal", 1, 3),
    Sketcher.Constraint("Angle", 0, Q("130 deg")),
    Sketcher.Constraint("Radius", 1, 0.75),
    Sketcher.Constraint("Distance", 0, 2.1),
    Sketcher.Constraint("DistanceY", 1, 3, -1, 1, 1.923449),
    Sketcher.Constraint("DistanceX", -1, 1, 1, 2, 1.053669),
])

sketch25 = doc.addObject("Sketcher::SketchObject", "Sketch024")
body.addObject(sketch25)
sketch25.AttachmentSupport = (doc.XY_Plane, [""])
sketch25.MapMode = "FlatFace"
sketch25.AttachmentOffset = App.Placement(App.Vector(0, 0, -3.876862), App.Rotation())
sketch25.addGeometry(Part.LineSegment(App.Vector(-30, 3, 0), App.Vector(0, 3, 0)), False)
sketch25.addConstraint([
    Sketcher.Constraint("Horizontal", 0),
    Sketcher.Constraint("PointOnObject", 0, 2, -2),
    Sketcher.Constraint("DistanceX", 0, 1, 0, 2, 30.0),
    Sketcher.Constraint("DistanceY", -1, 1, 0, 1, 3.267311),
])
doc.recompute()

additivepipe12 = doc.addObject("PartDesign::AdditivePipe", "AdditivePipe011")
body.addObject(additivepipe12)
additivepipe12.Profile = sketch24
additivepipe12.Spine = (sketch25, ["Edge1"])

sketch26 = doc.addObject("Sketcher::SketchObject", "Sketch025")
body.addObject(sketch26)
sketch26.AttachmentSupport = (doc.YZ_Plane, [""])
sketch26.MapMode = "FlatFace"
sketch26.addGeometry([
    Part.LineSegment(App.Vector(4.4, -1.7, 0), App.Vector(2.6, -0.6, 0)),
    Part.ArcOfCircle(Part.Circle(App.Vector(2.2, -1.2, 0), App.Vector(0, 0, 1), 0.8), math.radians(60), math.radians(240)),
    Part.LineSegment(App.Vector(1.8, -1.9, 0), App.Vector(3.6, -2.9, 0)),
    Part.ArcOfCircle(Part.Circle(App.Vector(4, -2.3, 0), App.Vector(0, 0, 1), 0.8), math.radians(-120), math.radians(60)),
], False)
sketch26.addConstraint([
    Sketcher.Constraint("Tangent", 0, 2, 1, 1),
    Sketcher.Constraint("Tangent", 1, 2, 2, 1),
    Sketcher.Constraint("Tangent", 2, 2, 3, 1),
    Sketcher.Constraint("Tangent", 3, 2, 0, 1),
    Sketcher.Constraint("Equal", 1, 3),
    Sketcher.Constraint("Angle", 0, Q("150 deg")),
    Sketcher.Constraint("Radius", 1, 0.75),
    Sketcher.Constraint("Distance", 0, 2.1),
    Sketcher.Constraint("DistanceX", -1, 1, 1, 3, 2.193671),
    Sketcher.Constraint("DistanceY", 1, 3, -1, 1, 1.249549),
])

sketch27 = doc.addObject("Sketcher::SketchObject", "Sketch026")
body.addObject(sketch27)
sketch27.AttachmentSupport = (doc.XY_Plane, [""])
sketch27.MapMode = "FlatFace"
sketch27.AttachmentOffset = App.Placement(App.Vector(0, 0, -2.524549), App.Rotation())
sketch27.addGeometry(Part.LineSegment(App.Vector(-30, 4, 0), App.Vector(0, 4, 0)), False)
sketch27.addConstraint([
    Sketcher.Constraint("Horizontal", 0),
    Sketcher.Constraint("PointOnObject", 0, 2, -2),
    Sketcher.Constraint("DistanceX", 0, 1, 0, 2, 30.0),
    Sketcher.Constraint("DistanceY", -1, 1, 0, 1, 4.402036),
])
doc.recompute()

additivepipe13 = doc.addObject("PartDesign::AdditivePipe", "AdditivePipe012")
body.addObject(additivepipe13)
additivepipe13.Profile = sketch26
additivepipe13.Spine = (sketch27, ["Edge1"])

sketch28 = doc.addObject("Sketcher::SketchObject", "Sketch027")
body.addObject(sketch28)
sketch28.AttachmentSupport = (doc.YZ_Plane, [""])
sketch28.MapMode = "FlatFace"
sketch28.addGeometry([
    Part.LineSegment(App.Vector(4.7, 0, 0), App.Vector(2.6, 0.3, 0)),
    Part.ArcOfCircle(Part.Circle(App.Vector(2.5, -0.4, 0), App.Vector(0, 0, 1), 0.8), math.radians(80), math.radians(260)),
    Part.LineSegment(App.Vector(2.4, -1.2, 0), App.Vector(4.4, -1.5, 0)),
    Part.ArcOfCircle(Part.Circle(App.Vector(4.6, -0.8, 0), App.Vector(0, 0, 1), 0.8), math.radians(-100), math.radians(80)),
], False)
sketch28.addConstraint([
    Sketcher.Constraint("Tangent", 0, 2, 1, 1),
    Sketcher.Constraint("Tangent", 1, 2, 2, 1),
    Sketcher.Constraint("Tangent", 2, 2, 3, 1),
    Sketcher.Constraint("Tangent", 3, 2, 0, 1),
    Sketcher.Constraint("Equal", 1, 3),
    Sketcher.Constraint("Angle", 0, Q("170 deg")),
    Sketcher.Constraint("Radius", 1, 0.75),
    Sketcher.Constraint("Distance", 0, 2.1),
    Sketcher.Constraint("DistanceX", -1, 1, 1, 3, 2.49455),
    Sketcher.Constraint("DistanceY", 1, 3, -1, 1, 0.422889),
])

sketch29 = doc.addObject("Sketcher::SketchObject", "Sketch028")
body.addObject(sketch29)
sketch29.AttachmentSupport = (doc.XY_Plane, [""])
sketch29.MapMode = "FlatFace"
sketch29.AttachmentOffset = App.Placement(App.Vector(0, 0, -0.865692), App.Rotation())
sketch29.addGeometry(Part.LineSegment(App.Vector(-30, 5, 0), App.Vector(0, 5, 0)), False)
sketch29.addConstraint([
    Sketcher.Constraint("Horizontal", 0),
    Sketcher.Constraint("PointOnObject", 0, 2, -2),
    Sketcher.Constraint("DistanceX", 0, 1, 0, 2, 30.0),
    Sketcher.Constraint("DistanceY", -1, 1, 0, 1, 5.00581),
])
doc.recompute()

additivepipe14 = doc.addObject("PartDesign::AdditivePipe", "AdditivePipe013")
body.addObject(additivepipe14)
additivepipe14.Profile = sketch28
additivepipe14.Spine = (sketch29, ["Edge1"])

sketch30 = doc.addObject("Sketcher::SketchObject", "Sketch029")
body.addObject(sketch30)
sketch30.AttachmentSupport = (doc.YZ_Plane, [""])
sketch30.MapMode = "FlatFace"
sketch30.addGeometry([
    Part.LineSegment(App.Vector(4.4, 1.6, 0), App.Vector(2.4, 1.2, 0)),
    Part.ArcOfCircle(Part.Circle(App.Vector(2.5, 0.5, 0), App.Vector(0, 0, 1), 0.8), math.radians(100), math.radians(280)),
    Part.LineSegment(App.Vector(2.6, -0.3, 0), App.Vector(4.7, 0.1, 0)),
    Part.ArcOfCircle(Part.Circle(App.Vector(4.6, 0.8, 0), App.Vector(0, 0, 1), 0.8), math.radians(-80), math.radians(100)),
], False)
sketch30.addConstraint([
    Sketcher.Constraint("Tangent", 0, 2, 1, 1),
    Sketcher.Constraint("Tangent", 1, 2, 2, 1),
    Sketcher.Constraint("Tangent", 2, 2, 3, 1),
    Sketcher.Constraint("Tangent", 3, 2, 0, 1),
    Sketcher.Constraint("Equal", 1, 3),
    Sketcher.Constraint("Angle", 0, Q("-170 deg")),
    Sketcher.Constraint("Radius", 1, 0.75),
    Sketcher.Constraint("Distance", 0, 2.1),
    Sketcher.Constraint("DistanceX", -1, 1, 1, 3, 2.49455),
    Sketcher.Constraint("DistanceY", -1, 1, 0, 2, 1.195429),
])

sketch31 = doc.addObject("Sketcher::SketchObject", "Sketch030")
body.addObject(sketch31)
sketch31.AttachmentSupport = (doc.XY_Plane, [""])
sketch31.MapMode = "FlatFace"
sketch31.AttachmentOffset = App.Placement(App.Vector(0, 0, 0.899627), App.Rotation())
sketch31.addGeometry(Part.LineSegment(App.Vector(-30, 5, 0), App.Vector(0, 5, 0)), False)
sketch31.addConstraint([
    Sketcher.Constraint("Horizontal", 0),
    Sketcher.Constraint("PointOnObject", 0, 2, -2),
    Sketcher.Constraint("DistanceX", 0, 1, 0, 2, 30.0),
    Sketcher.Constraint("DistanceY", -1, 1, 0, 1, 5.00581),
])
doc.recompute()

additivepipe15 = doc.addObject("PartDesign::AdditivePipe", "AdditivePipe014")
body.addObject(additivepipe15)
additivepipe15.Profile = sketch30
additivepipe15.Spine = (sketch31, ["Edge1"])

sketch32 = doc.addObject("Sketcher::SketchObject", "Sketch031")
body.addObject(sketch32)
sketch32.AttachmentSupport = (doc.YZ_Plane, [""])
sketch32.MapMode = "FlatFace"
sketch32.addGeometry([
    Part.LineSegment(App.Vector(3.6, 3, 0), App.Vector(1.8, 1.9, 0)),
    Part.ArcOfCircle(Part.Circle(App.Vector(2.2, 1.3, 0), App.Vector(0, 0, 1), 0.8), math.radians(120), math.radians(300)),
    Part.LineSegment(App.Vector(2.6, 0.6, 0), App.Vector(4.4, 1.7, 0)),
    Part.ArcOfCircle(Part.Circle(App.Vector(4, 2.3, 0), App.Vector(0, 0, 1), 0.8), math.radians(-60), math.radians(120)),
], False)
sketch32.addConstraint([
    Sketcher.Constraint("Tangent", 0, 2, 1, 1),
    Sketcher.Constraint("Tangent", 1, 2, 2, 1),
    Sketcher.Constraint("Tangent", 2, 2, 3, 1),
    Sketcher.Constraint("Tangent", 3, 2, 0, 1),
    Sketcher.Constraint("Equal", 1, 3),
    Sketcher.Constraint("Angle", 0, Q("-150 deg")),
    Sketcher.Constraint("Radius", 1, 0.75),
    Sketcher.Constraint("Distance", 0, 2.1),
    Sketcher.Constraint("DistanceX", -1, 1, 1, 3, 2.193671),
    Sketcher.Constraint("DistanceY", -1, 1, 1, 3, 1.283484),
])

sketch33 = doc.addObject("Sketcher::SketchObject", "Sketch032")
body.addObject(sketch33)
sketch33.AttachmentSupport = (doc.XY_Plane, [""])
sketch33.MapMode = "FlatFace"
sketch33.AttachmentOffset = App.Placement(App.Vector(0, 0, 2.558484), App.Rotation())
sketch33.addGeometry(Part.LineSegment(App.Vector(-30, 4, 0), App.Vector(0, 4, 0)), False)
sketch33.addConstraint([
    Sketcher.Constraint("Horizontal", 0),
    Sketcher.Constraint("PointOnObject", 0, 2, -2),
    Sketcher.Constraint("DistanceX", 0, 1, 0, 2, 30.0),
    Sketcher.Constraint("DistanceY", -1, 1, 0, 1, 4.402036),
])
doc.recompute()

additivepipe16 = doc.addObject("PartDesign::AdditivePipe", "AdditivePipe015")
body.addObject(additivepipe16)
additivepipe16.Profile = sketch32
additivepipe16.Spine = (sketch33, ["Edge1"])

sketch34 = doc.addObject("Sketcher::SketchObject", "Sketch033")
body.addObject(sketch34)
sketch34.AttachmentSupport = (doc.YZ_Plane, [""])
sketch34.MapMode = "FlatFace"
sketch34.addGeometry([
    Part.LineSegment(App.Vector(2.4, 4, 0), App.Vector(1.1, 2.4, 0)),
    Part.ArcOfCircle(Part.Circle(App.Vector(1.6, 2, 0), App.Vector(0, 0, 1), 0.8), math.radians(140), math.radians(320)),
    Part.LineSegment(App.Vector(2.2, 1.5, 0), App.Vector(3.6, 3.1, 0)),
    Part.ArcOfCircle(Part.Circle(App.Vector(3, 3.6, 0), App.Vector(0, 0, 1), 0.8), math.radians(-40), math.radians(140)),
], False)
sketch34.addConstraint([
    Sketcher.Constraint("Tangent", 0, 2, 1, 1),
    Sketcher.Constraint("Tangent", 1, 2, 2, 1),
    Sketcher.Constraint("Tangent", 2, 2, 3, 1),
    Sketcher.Constraint("Tangent", 3, 2, 0, 1),
    Sketcher.Constraint("Equal", 1, 3),
    Sketcher.Constraint("Angle", 0, Q("-130 deg")),
    Sketcher.Constraint("Radius", 1, 0.75),
    Sketcher.Constraint("Distance", 0, 2.1),
    Sketcher.Constraint("DistanceX", -1, 1, 0, 2, 1.053669),
    Sketcher.Constraint("DistanceY", -1, 1, 1, 3, 1.957383),
])

sketch35 = doc.addObject("Sketcher::SketchObject", "Sketch034")
body.addObject(sketch35)
sketch35.AttachmentSupport = (doc.XY_Plane, [""])
sketch35.MapMode = "FlatFace"
sketch35.AttachmentOffset = App.Placement(App.Vector(0, 0, 3.910796), App.Rotation())
sketch35.addGeometry(Part.LineSegment(App.Vector(-30, 3, 0), App.Vector(0, 3, 0)), False)
sketch35.addConstraint([
    Sketcher.Constraint("Horizontal", 0),
    Sketcher.Constraint("PointOnObject", 0, 2, -2),
    Sketcher.Constraint("DistanceX", 0, 1, 0, 2, 30.0),
    Sketcher.Constraint("DistanceY", -1, 1, 0, 1, 3.267311),
])
doc.recompute()

additivepipe17 = doc.addObject("PartDesign::AdditivePipe", "AdditivePipe016")
body.addObject(additivepipe17)
additivepipe17.Profile = sketch34
additivepipe17.Spine = (sketch35, ["Edge1"])

sketch36 = doc.addObject("Sketcher::SketchObject", "Sketch035")
body.addObject(sketch36)
sketch36.AttachmentSupport = (doc.YZ_Plane, [""])
sketch36.MapMode = "FlatFace"
sketch36.addGeometry([
    Part.LineSegment(App.Vector(0.9, 4.6, 0), App.Vector(0.2, 2.7, 0)),
    Part.ArcOfCircle(Part.Circle(App.Vector(0.9, 2.4, 0), App.Vector(0, 0, 1), 0.8), math.radians(160), math.radians(340)),
    Part.LineSegment(App.Vector(1.6, 2.1, 0), App.Vector(2.3, 4.1, 0)),
    Part.ArcOfCircle(Part.Circle(App.Vector(1.6, 4.4, 0), App.Vector(0, 0, 1), 0.8), math.radians(-20), math.radians(160)),
], False)
sketch36.addConstraint([
    Sketcher.Constraint("Tangent", 0, 2, 1, 1),
    Sketcher.Constraint("Tangent", 1, 2, 2, 1),
    Sketcher.Constraint("Tangent", 2, 2, 3, 1),
    Sketcher.Constraint("Tangent", 3, 2, 0, 1),
    Sketcher.Constraint("Equal", 1, 3),
    Sketcher.Constraint("Angle", 0, Q("-110 deg")),
    Sketcher.Constraint("Radius", 1, 0.75),
    Sketcher.Constraint("Distance", 0, 2.1),
    Sketcher.Constraint("DistanceX", -1, 1, 1, 3, 0.866348),
    Sketcher.Constraint("DistanceY", -1, 1, 1, 3, 2.397239),
])

sketch37 = doc.addObject("Sketcher::SketchObject", "Sketch036")
body.addObject(sketch37)
sketch37.AttachmentSupport = (doc.XY_Plane, [""])
sketch37.MapMode = "FlatFace"
sketch37.AttachmentOffset = App.Placement(App.Vector(0, 0, 4.793456), App.Rotation())
sketch37.addGeometry(Part.LineSegment(App.Vector(-30, 2, 0), App.Vector(0, 2, 0)), False)
sketch37.addConstraint([
    Sketcher.Constraint("Horizontal", 0),
    Sketcher.Constraint("PointOnObject", 0, 2, -2),
    Sketcher.Constraint("DistanceX", 0, 1, 0, 2, 30.0),
    Sketcher.Constraint("DistanceY", -1, 1, 0, 1, 1.7385),
])
doc.recompute()

additivepipe18 = doc.addObject("PartDesign::AdditivePipe", "AdditivePipe017")
body.addObject(additivepipe18)
additivepipe18.Profile = sketch36
additivepipe18.Spine = (sketch37, ["Edge1"])

sketch38 = doc.addObject("Sketcher::SketchObject", "Sketch037")
body.addObject(sketch38)
sketch38.AttachmentSupport = (doc.YZ_Plane, [""])
sketch38.MapMode = "FlatFace"
sketch38.AttachmentOffset = App.Placement(App.Vector(0, 0, -30), App.Rotation())
sketch38.addGeometry(Part.Circle(App.Vector(0, 0, 0), App.Vector(0, 0, 1), 6), False)
sketch38.addConstraint([
    Sketcher.Constraint("Coincident", 0, 3, -1, 1),
    Sketcher.Constraint("Diameter", 0, 11.728626),
])
pocket1 = doc.addObject("PartDesign::Pocket", "Pocket")
body.addObject(pocket1)
pocket1.Profile = sketch38
pocket1.Type = "TwoLengths"
pocket1.Length = 1
pocket1.Length2 = 1

sketch39 = doc.addObject("Sketcher::SketchObject", "Sketch038")
body.addObject(sketch39)
sketch39.AttachmentSupport = (doc.YZ_Plane, [""])
sketch39.MapMode = "FlatFace"
sketch39.AttachmentOffset = App.Placement(App.Vector(0, 0, 30), App.Rotation())
sketch39.addGeometry(Part.Circle(App.Vector(0, 0, 0), App.Vector(0, 0, 1), 6), False)
sketch39.addConstraint([
    Sketcher.Constraint("Coincident", 0, 3, -1, 1),
    Sketcher.Constraint("Diameter", 0, 12.311783),
])
pocket2 = doc.addObject("PartDesign::Pocket", "Pocket001")
body.addObject(pocket2)
pocket2.Profile = sketch39
pocket2.Type = "TwoLengths"
pocket2.Length = 1
pocket2.Length2 = 1
pocket2.Reversed = True

sketch40 = doc.addObject("Sketcher::SketchObject", "Sketch039")
body.addObject(sketch40)
sketch40.AttachmentSupport = (doc.YZ_Plane, [""])
sketch40.MapMode = "FlatFace"
sketch40.AttachmentOffset = App.Placement(App.Vector(0, 0, -29), App.Rotation())
sketch40.addGeometry([
    Part.LineSegment(App.Vector(-1, 3.9, 0), App.Vector(1, 3.9, 0)),
    Part.LineSegment(App.Vector(1, 3.9, 0), App.Vector(1, 2.8, 0)),
    Part.ArcOfCircle(Part.Circle(App.Vector(0, 0, 0), App.Vector(0, 0, 1), 3), math.radians(109), math.radians(431)),
    Part.LineSegment(App.Vector(-1, 2.8, 0), App.Vector(-1, 3.9, 0)),
], False)
sketch40.addConstraint([
    Sketcher.Constraint("Coincident", 0, 2, 1, 1),
    Sketcher.Constraint("Coincident", 1, 2, 2, 2),
    Sketcher.Constraint("Coincident", 2, 1, 3, 1),
    Sketcher.Constraint("Coincident", 3, 2, 0, 1),
    Sketcher.Constraint("Horizontal", 0),
    Sketcher.Constraint("Vertical", 1),
    Sketcher.Constraint("Vertical", 3),
    Sketcher.Constraint("Coincident", 2, 3, -1, 1),
    Sketcher.Constraint("Horizontal", 1, 2, 2, 1),
    Sketcher.Constraint("Radius", 2, 3.0),
    Sketcher.Constraint("DistanceX", 0, 1, 0, 2, 2.0),
    Sketcher.Constraint("DistanceY", 1, 2, 1, 1, 1.1),
])
pocket3 = doc.addObject("PartDesign::Pocket", "Pocket002")
body.addObject(pocket3)
pocket3.Profile = sketch40
pocket3.Type = "ThroughAll"
pocket3.Reversed = True

doc.recompute()
